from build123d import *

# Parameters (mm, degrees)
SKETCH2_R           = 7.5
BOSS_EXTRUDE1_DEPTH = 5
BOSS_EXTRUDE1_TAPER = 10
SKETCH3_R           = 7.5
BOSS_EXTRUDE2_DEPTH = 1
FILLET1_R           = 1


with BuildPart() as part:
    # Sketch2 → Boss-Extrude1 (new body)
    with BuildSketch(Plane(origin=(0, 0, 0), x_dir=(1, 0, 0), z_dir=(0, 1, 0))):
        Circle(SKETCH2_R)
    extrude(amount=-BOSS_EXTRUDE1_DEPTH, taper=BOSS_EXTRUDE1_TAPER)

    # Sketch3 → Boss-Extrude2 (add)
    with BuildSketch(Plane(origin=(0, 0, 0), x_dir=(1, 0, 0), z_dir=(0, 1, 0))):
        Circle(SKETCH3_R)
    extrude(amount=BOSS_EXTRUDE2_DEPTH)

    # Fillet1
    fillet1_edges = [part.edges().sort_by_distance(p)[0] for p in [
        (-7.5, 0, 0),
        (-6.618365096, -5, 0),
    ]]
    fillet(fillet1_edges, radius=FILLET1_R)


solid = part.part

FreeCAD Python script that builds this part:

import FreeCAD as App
import Part
import Sketcher
from FreeCAD import Vector


def edges_at(feature, points):
    """Names of the edges that pass closest to the given points."""
    edges = feature.Shape.Edges
    near = lambda p: min(range(len(edges)), key=lambda i: edges[i].distToShape(Part.Vertex(*p))[0])
    return sorted({f"Edge{near(p) + 1}" for p in points})

doc = App.newDocument("Part")
body = doc.addObject("PartDesign::Body", "Body")

# Sketch on XZ plane
sketch1 = body.newObject("Sketcher::SketchObject", "Sketch")
sketch1.AttachmentSupport = (doc.getObject("XZ_Plane"), [""])
sketch1.MapMode = "FlatFace"
sketch1.addGeometry(Part.Circle(Vector(0, 0, 0), Vector(0, 0, 1), 7.5), False)
sketch1.addConstraint([
    Sketcher.Constraint("Coincident", 0, 3, -1, 1),
    Sketcher.Constraint("Diameter", 0, 15.0),
])
pad1 = body.newObject("PartDesign::Pad", "Pad")
pad1.Profile = sketch1
pad1.Length = 5
pad1.TaperAngle = -10

# Sketch on XZ plane
sketch2 = body.newObject("Sketcher::SketchObject", "Sketch001")
sketch2.AttachmentSupport = (doc.getObject("XZ_Plane"), [""])
sketch2.MapMode = "FlatFace"
sketch2.addGeometry(Part.Circle(Vector(0, 0, 0), Vector(0, 0, 1), 7.5), False)
sketch2.addConstraint([
    Sketcher.Constraint("Coincident", 0, 3, -1, 1),
    Sketcher.Constraint("Diameter", 0, 15.0),
])
pad2 = body.newObject("PartDesign::Pad", "Pad001")
pad2.Profile = sketch2
pad2.Length = 1
pad2.Reversed = True
doc.recompute()

fillet = body.newObject("PartDesign::Fillet", "Fillet")
fillet.Base = (pad2, edges_at(pad2, [(-7.5, 0, 0), (-6.618, -5, 0)]))
fillet.Radius = 1

doc.recompute()
